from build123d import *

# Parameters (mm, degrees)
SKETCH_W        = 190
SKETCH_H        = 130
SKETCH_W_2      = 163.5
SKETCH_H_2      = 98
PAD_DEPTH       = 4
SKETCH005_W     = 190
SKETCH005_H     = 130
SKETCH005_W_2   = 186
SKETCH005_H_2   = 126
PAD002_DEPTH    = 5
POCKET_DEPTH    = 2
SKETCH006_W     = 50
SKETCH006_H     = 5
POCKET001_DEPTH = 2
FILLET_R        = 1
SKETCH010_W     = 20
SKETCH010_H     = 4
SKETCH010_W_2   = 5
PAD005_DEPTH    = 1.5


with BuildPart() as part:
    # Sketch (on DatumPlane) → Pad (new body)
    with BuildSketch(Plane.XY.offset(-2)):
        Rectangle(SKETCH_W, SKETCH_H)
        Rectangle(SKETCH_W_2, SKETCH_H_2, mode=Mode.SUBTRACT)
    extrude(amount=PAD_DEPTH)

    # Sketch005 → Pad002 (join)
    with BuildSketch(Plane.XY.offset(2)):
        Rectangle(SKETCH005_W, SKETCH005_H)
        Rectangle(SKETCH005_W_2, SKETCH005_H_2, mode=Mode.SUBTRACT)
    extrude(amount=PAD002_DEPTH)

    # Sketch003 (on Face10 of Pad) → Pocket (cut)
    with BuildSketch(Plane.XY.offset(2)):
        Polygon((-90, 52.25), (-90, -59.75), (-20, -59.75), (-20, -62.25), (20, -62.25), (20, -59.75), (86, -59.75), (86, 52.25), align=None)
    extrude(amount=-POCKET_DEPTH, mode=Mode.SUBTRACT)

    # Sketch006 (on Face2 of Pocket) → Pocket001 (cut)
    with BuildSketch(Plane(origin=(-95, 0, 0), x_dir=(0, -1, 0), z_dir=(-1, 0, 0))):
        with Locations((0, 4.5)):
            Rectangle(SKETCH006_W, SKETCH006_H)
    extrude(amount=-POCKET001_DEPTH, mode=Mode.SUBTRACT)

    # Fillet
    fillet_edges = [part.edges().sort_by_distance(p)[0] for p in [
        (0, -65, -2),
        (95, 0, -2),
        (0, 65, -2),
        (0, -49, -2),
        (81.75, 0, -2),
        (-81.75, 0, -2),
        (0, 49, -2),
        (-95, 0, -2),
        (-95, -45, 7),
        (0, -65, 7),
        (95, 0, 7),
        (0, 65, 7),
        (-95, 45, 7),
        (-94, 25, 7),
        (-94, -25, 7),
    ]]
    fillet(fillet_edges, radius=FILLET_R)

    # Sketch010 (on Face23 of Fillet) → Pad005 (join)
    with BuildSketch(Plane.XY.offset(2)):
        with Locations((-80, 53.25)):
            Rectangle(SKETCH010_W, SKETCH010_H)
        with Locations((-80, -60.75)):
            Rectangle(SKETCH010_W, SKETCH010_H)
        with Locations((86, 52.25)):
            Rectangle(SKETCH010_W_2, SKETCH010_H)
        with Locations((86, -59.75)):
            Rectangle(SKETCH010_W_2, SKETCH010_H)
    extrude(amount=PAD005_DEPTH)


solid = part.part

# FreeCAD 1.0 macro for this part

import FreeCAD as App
import Part
import Sketcher

V = App.Vector
Q = App.Units.Quantity


def edges_at(feature, points):
    """Names of the edges that pass closest to the given points."""
    edges = feature.Shape.Edges
    near = lambda p: min(range(len(edges)), key=lambda i: edges[i].distToShape(Part.Vertex(*p))[0])
    return sorted({f"Edge{near(p) + 1}" for p in points})


def add_polygon(sketch, points):
    """Adds a closed chain of lines whose ends are joined by coincident constraints."""
    first, n = sketch.GeometryCount, len(points)
    for a, b in zip(points, points[1:] + points[:1]):
        sketch.addGeometry(Part.LineSegment(App.Vector(*a, 0), App.Vector(*b, 0)), False)
    for i in range(n):
        sketch.addConstraint(Sketcher.Constraint("Coincident", first + i, 2, first + (i + 1) % n, 1))

doc = App.newDocument("Part")
body = doc.addObject("PartDesign::Body", "Body")

# Sketch on XY plane
sketch1 = body.newObject("Sketcher::SketchObject", "Sketch")
sketch1.AttachmentSupport = (doc.getObject("XY_Plane"), [""])
sketch1.MapMode = "FlatFace"
sketch1.AttachmentOffset = App.Placement(V(0, 0, -2), App.Rotation())
add_polygon(sketch1, [(-95, 65), (-95, -65), (95, -65), (95, 65)])  # lines 0-3
add_polygon(sketch1, [(81.75, -49), (-81.75, -49), (-81.75, 49), (81.75, 49)])  # lines 4-7
sketch1.addConstraint(Sketcher.Constraint("Vertical", 0))
sketch1.addConstraint(Sketcher.Constraint("Horizontal", 1))
sketch1.addConstraint(Sketcher.Constraint("Vertical", 2))
sketch1.addConstraint(Sketcher.Constraint("Horizontal", 3))
sketch1.addConstraint(Sketcher.Constraint("Horizontal", 4))
sketch1.addConstraint(Sketcher.Constraint("Vertical", 5))
sketch1.addConstraint(Sketcher.Constraint("Horizontal", 6))
sketch1.addConstraint(Sketcher.Constraint("Vertical", 7))
sketch1.addConstraint(Sketcher.Constraint("Symmetric", 0, 2, 2, 2, -1, 1))
sketch1.addConstraint(Sketcher.Constraint("Symmetric", 4, 2, 6, 2, -1, 1))
sketch1.addConstraint(Sketcher.Constraint("DistanceX", 1, 1, 1, 2, Q("190 mm")))
sketch1.addConstraint(Sketcher.Constraint("DistanceY", 0, 2, 0, 1, Q("130 mm")))
sketch1.addConstraint(Sketcher.Constraint("DistanceY", 5, 1, 5, 2, Q("98 mm")))
sketch1.addConstraint(Sketcher.Constraint("DistanceX", 4, 2, 4, 1, Q("163.5 mm")))
pad1 = body.newObject("PartDesign::Pad", "Pad")
pad1.Profile = sketch1
pad1.Length = 4

# Sketch on XY plane
sketch2 = body.newObject("Sketcher::SketchObject", "Sketch001")
sketch2.AttachmentSupport = (doc.getObject("XY_Plane"), [""])
sketch2.MapMode = "FlatFace"
sketch2.AttachmentOffset = App.Placement(V(0, 0, 2), App.Rotation())
add_polygon(sketch2, [(-95, 65), (-95, -65), (95, -65), (95, 65)])  # lines 0-3
add_polygon(sketch2, [(93, -63), (-93, -63), (-93, 63), (93, 63)])  # lines 4-7
sketch2.addConstraint(Sketcher.Constraint("Vertical", 0))
sketch2.addConstraint(Sketcher.Constraint("Horizontal", 1))
sketch2.addConstraint(Sketcher.Constraint("Vertical", 2))
sketch2.addConstraint(Sketcher.Constraint("Horizontal", 3))
sketch2.addConstraint(Sketcher.Constraint("Horizontal", 4))
sketch2.addConstraint(Sketcher.Constraint("Vertical", 5))
sketch2.addConstraint(Sketcher.Constraint("Horizontal", 6))
sketch2.addConstraint(Sketcher.Constraint("Vertical", 7))
sketch2.addConstraint(Sketcher.Constraint("Symmetric", 0, 2, 2, 2, -1, 1))
sketch2.addConstraint(Sketcher.Constraint("Symmetric", 4, 2, 6, 2, -1, 1))
sketch2.addConstraint(Sketcher.Constraint("DistanceX", 1, 1, 1, 2, Q("190 mm")))
sketch2.addConstraint(Sketcher.Constraint("DistanceX", 4, 2, 4, 1, Q("186 mm")))
sketch2.addConstraint(Sketcher.Constraint("DistanceY", 0, 2, 0, 1, Q("130 mm")))
sketch2.addConstraint(Sketcher.Constraint("DistanceY", 5, 1, 5, 2, Q("126 mm")))
pad2 = body.newObject("PartDesign::Pad", "Pad001")
pad2.Profile = sketch2
pad2.Length = 5

# Sketch on XY plane
sketch3 = body.newObject("Sketcher::SketchObject", "Sketch002")
sketch3.AttachmentSupport = (doc.getObject("XY_Plane"), [""])
sketch3.MapMode = "FlatFace"
sketch3.AttachmentOffset = App.Placement(V(0, 0, 2), App.Rotation())
add_polygon(sketch3, [(-90, 52.25), (-90, -59.75), (-20, -59.75), (-20, -62.25), (20, -62.25), (20, -59.75), (86, -59.75), (86, 52.25)])  # lines 0-7
sketch3.addConstraint(Sketcher.Constraint("Vertical", 0))
sketch3.addConstraint(Sketcher.Constraint("Horizontal", 1))
sketch3.addConstraint(Sketcher.Constraint("Vertical", 2))
sketch3.addConstraint(Sketcher.Constraint("Horizontal", 3))
sketch3.addConstraint(Sketcher.Constraint("Vertical", 4))
sketch3.addConstraint(Sketcher.Constraint("Horizontal", 5))
sketch3.addConstraint(Sketcher.Constraint("Vertical", 6))
sketch3.addConstraint(Sketcher.Constraint("Horizontal", 7))
sketch3.addConstraint(Sketcher.Constraint("Symmetric", 1, 2, 4, 2, -2))
sketch3.addConstraint(Sketcher.Constraint("DistanceX", 1, 1, 1, 2, Q("70 mm")))
sketch3.addConstraint(Sketcher.Constraint("DistanceX", 3, 1, 3, 2, Q("40 mm")))
sketch3.addConstraint(Sketcher.Constraint("DistanceX", 5, 1, 5, 2, Q("66 mm")))
sketch3.addConstraint(Sketcher.Constraint("DistanceY", 0, 2, 0, 1, Q("112 mm")))
sketch3.addConstraint(Sketcher.Constraint("DistanceY", 2, 2, 2, 1, Q("2.5 mm")))
sketch3.addConstraint(Sketcher.Constraint("DistanceY", 0, 2, -1, 1, Q("59.75 mm")))
pocket1 = body.newObject("PartDesign::Pocket", "Pocket")
pocket1.Profile = sketch3
pocket1.Length = 2

# Sketch on YZ plane
sketch4 = body.newObject("Sketcher::SketchObject", "Sketch003")
sketch4.AttachmentSupport = (doc.getObject("YZ_Plane"), [""])
sketch4.MapMode = "FlatFace"
sketch4.AttachmentOffset = App.Placement(V(0, 0, -95), App.Rotation())
add_polygon(sketch4, [(25, 7), (25, 2), (-25, 2), (-25, 7)])  # lines 0-3
sketch4.addConstraint(Sketcher.Constraint("Vertical", 0))
sketch4.addConstraint(Sketcher.Constraint("Horizontal", 1))
sketch4.addConstraint(Sketcher.Constraint("Vertical", 2))
sketch4.addConstraint(Sketcher.Constraint("Horizontal", 3))
sketch4.addConstraint(Sketcher.Constraint("DistanceX", 1, 2, 1, 1, Q("50 mm")))
sketch4.addConstraint(Sketcher.Constraint("DistanceY", 0, 2, 0, 1, Q("5 mm")))
sketch4.addConstraint(Sketcher.Constraint("DistanceX", -1, 1, 0, 2, Q("25 mm")))
sketch4.addConstraint(Sketcher.Constraint("DistanceY", -1, 1, 0, 2, Q("2 mm")))
pocket2 = body.newObject("PartDesign::Pocket", "Pocket001")
pocket2.Profile = sketch4
pocket2.Length = 2
pocket2.Reversed = True
doc.recompute()

fillet = body.newObject("PartDesign::Fillet", "Fillet")
fillet.Base = (pocket2, edges_at(pocket2, [
    (0, -65, -2),
    (95, 0, -2),
    (0, 65, -2),
    (0, -49, -2),
    (81.75, 0, -2),
    (-81.75, 0, -2),
    (0, 49, -2),
    (-95, 0, -2),
    (-95, -45, 7),
    (0, -65, 7),
    (95, 0, 7),
    (0, 65, 7),
    (-95, 45, 7),
    (-94, 25, 7),
    (-94, -25, 7),
]))
fillet.Radius = 1

# Sketch on XY plane
sketch5 = body.newObject("Sketcher::SketchObject", "Sketch004")
sketch5.AttachmentSupport = (doc.getObject("XY_Plane"), [""])
sketch5.MapMode = "FlatFace"
sketch5.AttachmentOffset = App.Placement(V(0, 0, 2), App.Rotation())
add_polygon(sketch5, [(-90, 55.25), (-90, 51.25), (-70, 51.25), (-70, 55.25)])  # lines 0-3
add_polygon(sketch5, [(-90, -58.75), (-90, -62.75), (-70, -62.75), (-70, -58.75)])  # lines 4-7
add_polygon(sketch5, [(83.5, 54.25), (83.5, 50.25), (88.5, 50.25), (88.5, 54.25)])  # lines 8-11
add_polygon(sketch5, [(83.5, -57.75), (83.5, -61.75), (88.5, -61.75), (88.5, -57.75)])  # lines 12-15
sketch5.addConstraint(Sketcher.Constraint("Vertical", 0))
sketch5.addConstraint(Sketcher.Constraint("Horizontal", 1))
sketch5.addConstraint(Sketcher.Constraint("Vertical", 2))
sketch5.addConstraint(Sketcher.Constraint("Horizontal", 3))
sketch5.addConstraint(Sketcher.Constraint("Vertical", 4))
sketch5.addConstraint(Sketcher.Constraint("Horizontal", 5))
sketch5.addConstraint(Sketcher.Constraint("Vertical", 6))
sketch5.addConstraint(Sketcher.Constraint("Horizontal", 7))
sketch5.addConstraint(Sketcher.Constraint("Vertical", 8))
sketch5.addConstraint(Sketcher.Constraint("Horizontal", 9))
sketch5.addConstraint(Sketcher.Constraint("Vertical", 10))
sketch5.addConstraint(Sketcher.Constraint("Horizontal", 11))
sketch5.addConstraint(Sketcher.Constraint("Vertical", 12))
sketch5.addConstraint(Sketcher.Constraint("Horizontal", 13))
sketch5.addConstraint(Sketcher.Constraint("Vertical", 14))
sketch5.addConstraint(Sketcher.Constraint("Horizontal", 15))
sketch5.addConstraint(Sketcher.Constraint("Vertical", 3, 2, 4, 2))
sketch5.addConstraint(Sketcher.Constraint("Vertical", 2, 2, 5, 2))
sketch5.addConstraint(Sketcher.Constraint("Vertical", 11, 2, 12, 2))
sketch5.addConstraint(Sketcher.Constraint("Vertical", 10, 2, 13, 2))
sketch5.addConstraint(Sketcher.Constraint("Equal", 2, 4))
sketch5.addConstraint(Sketcher.Constraint("Equal", 6, 8))
sketch5.addConstraint(Sketcher.Constraint("Equal", 10, 12))
sketch5.addConstraint(Sketcher.Constraint("DistanceX", 1, 1, 1, 2, Q("20 mm")))
sketch5.addConstraint(Sketcher.Constraint("DistanceX", 9, 1, 9, 2, Q("5 mm")))
sketch5.addConstraint(Sketcher.Constraint("DistanceY", 0, 2, 0, 1, Q("4 mm")))
sketch5.addConstraint(Sketcher.Constraint("DistanceX", 0, 2, -1, 1, Q("90 mm")))
sketch5.addConstraint(Sketcher.Constraint("DistanceY", 4, 2, 0, 2, Q("114 mm")))
sketch5.addConstraint(Sketcher.Constraint("DistanceY", 8, 2, 1, 2, Q("1 mm")))
sketch5.addConstraint(Sketcher.Constraint("DistanceY", 12, 2, 8, 2, Q("112 mm")))
sketch5.addConstraint(Sketcher.Constraint("DistanceX", -1, 1, 8, 2, Q("83.5 mm")))
sketch5.addConstraint(Sketcher.Constraint("DistanceY", -1, 1, 0, 2, Q("51.25 mm")))
pad3 = body.newObject("PartDesign::Pad", "Pad002")
pad3.Profile = sketch5
pad3.Length = 1.5

doc.recompute()
